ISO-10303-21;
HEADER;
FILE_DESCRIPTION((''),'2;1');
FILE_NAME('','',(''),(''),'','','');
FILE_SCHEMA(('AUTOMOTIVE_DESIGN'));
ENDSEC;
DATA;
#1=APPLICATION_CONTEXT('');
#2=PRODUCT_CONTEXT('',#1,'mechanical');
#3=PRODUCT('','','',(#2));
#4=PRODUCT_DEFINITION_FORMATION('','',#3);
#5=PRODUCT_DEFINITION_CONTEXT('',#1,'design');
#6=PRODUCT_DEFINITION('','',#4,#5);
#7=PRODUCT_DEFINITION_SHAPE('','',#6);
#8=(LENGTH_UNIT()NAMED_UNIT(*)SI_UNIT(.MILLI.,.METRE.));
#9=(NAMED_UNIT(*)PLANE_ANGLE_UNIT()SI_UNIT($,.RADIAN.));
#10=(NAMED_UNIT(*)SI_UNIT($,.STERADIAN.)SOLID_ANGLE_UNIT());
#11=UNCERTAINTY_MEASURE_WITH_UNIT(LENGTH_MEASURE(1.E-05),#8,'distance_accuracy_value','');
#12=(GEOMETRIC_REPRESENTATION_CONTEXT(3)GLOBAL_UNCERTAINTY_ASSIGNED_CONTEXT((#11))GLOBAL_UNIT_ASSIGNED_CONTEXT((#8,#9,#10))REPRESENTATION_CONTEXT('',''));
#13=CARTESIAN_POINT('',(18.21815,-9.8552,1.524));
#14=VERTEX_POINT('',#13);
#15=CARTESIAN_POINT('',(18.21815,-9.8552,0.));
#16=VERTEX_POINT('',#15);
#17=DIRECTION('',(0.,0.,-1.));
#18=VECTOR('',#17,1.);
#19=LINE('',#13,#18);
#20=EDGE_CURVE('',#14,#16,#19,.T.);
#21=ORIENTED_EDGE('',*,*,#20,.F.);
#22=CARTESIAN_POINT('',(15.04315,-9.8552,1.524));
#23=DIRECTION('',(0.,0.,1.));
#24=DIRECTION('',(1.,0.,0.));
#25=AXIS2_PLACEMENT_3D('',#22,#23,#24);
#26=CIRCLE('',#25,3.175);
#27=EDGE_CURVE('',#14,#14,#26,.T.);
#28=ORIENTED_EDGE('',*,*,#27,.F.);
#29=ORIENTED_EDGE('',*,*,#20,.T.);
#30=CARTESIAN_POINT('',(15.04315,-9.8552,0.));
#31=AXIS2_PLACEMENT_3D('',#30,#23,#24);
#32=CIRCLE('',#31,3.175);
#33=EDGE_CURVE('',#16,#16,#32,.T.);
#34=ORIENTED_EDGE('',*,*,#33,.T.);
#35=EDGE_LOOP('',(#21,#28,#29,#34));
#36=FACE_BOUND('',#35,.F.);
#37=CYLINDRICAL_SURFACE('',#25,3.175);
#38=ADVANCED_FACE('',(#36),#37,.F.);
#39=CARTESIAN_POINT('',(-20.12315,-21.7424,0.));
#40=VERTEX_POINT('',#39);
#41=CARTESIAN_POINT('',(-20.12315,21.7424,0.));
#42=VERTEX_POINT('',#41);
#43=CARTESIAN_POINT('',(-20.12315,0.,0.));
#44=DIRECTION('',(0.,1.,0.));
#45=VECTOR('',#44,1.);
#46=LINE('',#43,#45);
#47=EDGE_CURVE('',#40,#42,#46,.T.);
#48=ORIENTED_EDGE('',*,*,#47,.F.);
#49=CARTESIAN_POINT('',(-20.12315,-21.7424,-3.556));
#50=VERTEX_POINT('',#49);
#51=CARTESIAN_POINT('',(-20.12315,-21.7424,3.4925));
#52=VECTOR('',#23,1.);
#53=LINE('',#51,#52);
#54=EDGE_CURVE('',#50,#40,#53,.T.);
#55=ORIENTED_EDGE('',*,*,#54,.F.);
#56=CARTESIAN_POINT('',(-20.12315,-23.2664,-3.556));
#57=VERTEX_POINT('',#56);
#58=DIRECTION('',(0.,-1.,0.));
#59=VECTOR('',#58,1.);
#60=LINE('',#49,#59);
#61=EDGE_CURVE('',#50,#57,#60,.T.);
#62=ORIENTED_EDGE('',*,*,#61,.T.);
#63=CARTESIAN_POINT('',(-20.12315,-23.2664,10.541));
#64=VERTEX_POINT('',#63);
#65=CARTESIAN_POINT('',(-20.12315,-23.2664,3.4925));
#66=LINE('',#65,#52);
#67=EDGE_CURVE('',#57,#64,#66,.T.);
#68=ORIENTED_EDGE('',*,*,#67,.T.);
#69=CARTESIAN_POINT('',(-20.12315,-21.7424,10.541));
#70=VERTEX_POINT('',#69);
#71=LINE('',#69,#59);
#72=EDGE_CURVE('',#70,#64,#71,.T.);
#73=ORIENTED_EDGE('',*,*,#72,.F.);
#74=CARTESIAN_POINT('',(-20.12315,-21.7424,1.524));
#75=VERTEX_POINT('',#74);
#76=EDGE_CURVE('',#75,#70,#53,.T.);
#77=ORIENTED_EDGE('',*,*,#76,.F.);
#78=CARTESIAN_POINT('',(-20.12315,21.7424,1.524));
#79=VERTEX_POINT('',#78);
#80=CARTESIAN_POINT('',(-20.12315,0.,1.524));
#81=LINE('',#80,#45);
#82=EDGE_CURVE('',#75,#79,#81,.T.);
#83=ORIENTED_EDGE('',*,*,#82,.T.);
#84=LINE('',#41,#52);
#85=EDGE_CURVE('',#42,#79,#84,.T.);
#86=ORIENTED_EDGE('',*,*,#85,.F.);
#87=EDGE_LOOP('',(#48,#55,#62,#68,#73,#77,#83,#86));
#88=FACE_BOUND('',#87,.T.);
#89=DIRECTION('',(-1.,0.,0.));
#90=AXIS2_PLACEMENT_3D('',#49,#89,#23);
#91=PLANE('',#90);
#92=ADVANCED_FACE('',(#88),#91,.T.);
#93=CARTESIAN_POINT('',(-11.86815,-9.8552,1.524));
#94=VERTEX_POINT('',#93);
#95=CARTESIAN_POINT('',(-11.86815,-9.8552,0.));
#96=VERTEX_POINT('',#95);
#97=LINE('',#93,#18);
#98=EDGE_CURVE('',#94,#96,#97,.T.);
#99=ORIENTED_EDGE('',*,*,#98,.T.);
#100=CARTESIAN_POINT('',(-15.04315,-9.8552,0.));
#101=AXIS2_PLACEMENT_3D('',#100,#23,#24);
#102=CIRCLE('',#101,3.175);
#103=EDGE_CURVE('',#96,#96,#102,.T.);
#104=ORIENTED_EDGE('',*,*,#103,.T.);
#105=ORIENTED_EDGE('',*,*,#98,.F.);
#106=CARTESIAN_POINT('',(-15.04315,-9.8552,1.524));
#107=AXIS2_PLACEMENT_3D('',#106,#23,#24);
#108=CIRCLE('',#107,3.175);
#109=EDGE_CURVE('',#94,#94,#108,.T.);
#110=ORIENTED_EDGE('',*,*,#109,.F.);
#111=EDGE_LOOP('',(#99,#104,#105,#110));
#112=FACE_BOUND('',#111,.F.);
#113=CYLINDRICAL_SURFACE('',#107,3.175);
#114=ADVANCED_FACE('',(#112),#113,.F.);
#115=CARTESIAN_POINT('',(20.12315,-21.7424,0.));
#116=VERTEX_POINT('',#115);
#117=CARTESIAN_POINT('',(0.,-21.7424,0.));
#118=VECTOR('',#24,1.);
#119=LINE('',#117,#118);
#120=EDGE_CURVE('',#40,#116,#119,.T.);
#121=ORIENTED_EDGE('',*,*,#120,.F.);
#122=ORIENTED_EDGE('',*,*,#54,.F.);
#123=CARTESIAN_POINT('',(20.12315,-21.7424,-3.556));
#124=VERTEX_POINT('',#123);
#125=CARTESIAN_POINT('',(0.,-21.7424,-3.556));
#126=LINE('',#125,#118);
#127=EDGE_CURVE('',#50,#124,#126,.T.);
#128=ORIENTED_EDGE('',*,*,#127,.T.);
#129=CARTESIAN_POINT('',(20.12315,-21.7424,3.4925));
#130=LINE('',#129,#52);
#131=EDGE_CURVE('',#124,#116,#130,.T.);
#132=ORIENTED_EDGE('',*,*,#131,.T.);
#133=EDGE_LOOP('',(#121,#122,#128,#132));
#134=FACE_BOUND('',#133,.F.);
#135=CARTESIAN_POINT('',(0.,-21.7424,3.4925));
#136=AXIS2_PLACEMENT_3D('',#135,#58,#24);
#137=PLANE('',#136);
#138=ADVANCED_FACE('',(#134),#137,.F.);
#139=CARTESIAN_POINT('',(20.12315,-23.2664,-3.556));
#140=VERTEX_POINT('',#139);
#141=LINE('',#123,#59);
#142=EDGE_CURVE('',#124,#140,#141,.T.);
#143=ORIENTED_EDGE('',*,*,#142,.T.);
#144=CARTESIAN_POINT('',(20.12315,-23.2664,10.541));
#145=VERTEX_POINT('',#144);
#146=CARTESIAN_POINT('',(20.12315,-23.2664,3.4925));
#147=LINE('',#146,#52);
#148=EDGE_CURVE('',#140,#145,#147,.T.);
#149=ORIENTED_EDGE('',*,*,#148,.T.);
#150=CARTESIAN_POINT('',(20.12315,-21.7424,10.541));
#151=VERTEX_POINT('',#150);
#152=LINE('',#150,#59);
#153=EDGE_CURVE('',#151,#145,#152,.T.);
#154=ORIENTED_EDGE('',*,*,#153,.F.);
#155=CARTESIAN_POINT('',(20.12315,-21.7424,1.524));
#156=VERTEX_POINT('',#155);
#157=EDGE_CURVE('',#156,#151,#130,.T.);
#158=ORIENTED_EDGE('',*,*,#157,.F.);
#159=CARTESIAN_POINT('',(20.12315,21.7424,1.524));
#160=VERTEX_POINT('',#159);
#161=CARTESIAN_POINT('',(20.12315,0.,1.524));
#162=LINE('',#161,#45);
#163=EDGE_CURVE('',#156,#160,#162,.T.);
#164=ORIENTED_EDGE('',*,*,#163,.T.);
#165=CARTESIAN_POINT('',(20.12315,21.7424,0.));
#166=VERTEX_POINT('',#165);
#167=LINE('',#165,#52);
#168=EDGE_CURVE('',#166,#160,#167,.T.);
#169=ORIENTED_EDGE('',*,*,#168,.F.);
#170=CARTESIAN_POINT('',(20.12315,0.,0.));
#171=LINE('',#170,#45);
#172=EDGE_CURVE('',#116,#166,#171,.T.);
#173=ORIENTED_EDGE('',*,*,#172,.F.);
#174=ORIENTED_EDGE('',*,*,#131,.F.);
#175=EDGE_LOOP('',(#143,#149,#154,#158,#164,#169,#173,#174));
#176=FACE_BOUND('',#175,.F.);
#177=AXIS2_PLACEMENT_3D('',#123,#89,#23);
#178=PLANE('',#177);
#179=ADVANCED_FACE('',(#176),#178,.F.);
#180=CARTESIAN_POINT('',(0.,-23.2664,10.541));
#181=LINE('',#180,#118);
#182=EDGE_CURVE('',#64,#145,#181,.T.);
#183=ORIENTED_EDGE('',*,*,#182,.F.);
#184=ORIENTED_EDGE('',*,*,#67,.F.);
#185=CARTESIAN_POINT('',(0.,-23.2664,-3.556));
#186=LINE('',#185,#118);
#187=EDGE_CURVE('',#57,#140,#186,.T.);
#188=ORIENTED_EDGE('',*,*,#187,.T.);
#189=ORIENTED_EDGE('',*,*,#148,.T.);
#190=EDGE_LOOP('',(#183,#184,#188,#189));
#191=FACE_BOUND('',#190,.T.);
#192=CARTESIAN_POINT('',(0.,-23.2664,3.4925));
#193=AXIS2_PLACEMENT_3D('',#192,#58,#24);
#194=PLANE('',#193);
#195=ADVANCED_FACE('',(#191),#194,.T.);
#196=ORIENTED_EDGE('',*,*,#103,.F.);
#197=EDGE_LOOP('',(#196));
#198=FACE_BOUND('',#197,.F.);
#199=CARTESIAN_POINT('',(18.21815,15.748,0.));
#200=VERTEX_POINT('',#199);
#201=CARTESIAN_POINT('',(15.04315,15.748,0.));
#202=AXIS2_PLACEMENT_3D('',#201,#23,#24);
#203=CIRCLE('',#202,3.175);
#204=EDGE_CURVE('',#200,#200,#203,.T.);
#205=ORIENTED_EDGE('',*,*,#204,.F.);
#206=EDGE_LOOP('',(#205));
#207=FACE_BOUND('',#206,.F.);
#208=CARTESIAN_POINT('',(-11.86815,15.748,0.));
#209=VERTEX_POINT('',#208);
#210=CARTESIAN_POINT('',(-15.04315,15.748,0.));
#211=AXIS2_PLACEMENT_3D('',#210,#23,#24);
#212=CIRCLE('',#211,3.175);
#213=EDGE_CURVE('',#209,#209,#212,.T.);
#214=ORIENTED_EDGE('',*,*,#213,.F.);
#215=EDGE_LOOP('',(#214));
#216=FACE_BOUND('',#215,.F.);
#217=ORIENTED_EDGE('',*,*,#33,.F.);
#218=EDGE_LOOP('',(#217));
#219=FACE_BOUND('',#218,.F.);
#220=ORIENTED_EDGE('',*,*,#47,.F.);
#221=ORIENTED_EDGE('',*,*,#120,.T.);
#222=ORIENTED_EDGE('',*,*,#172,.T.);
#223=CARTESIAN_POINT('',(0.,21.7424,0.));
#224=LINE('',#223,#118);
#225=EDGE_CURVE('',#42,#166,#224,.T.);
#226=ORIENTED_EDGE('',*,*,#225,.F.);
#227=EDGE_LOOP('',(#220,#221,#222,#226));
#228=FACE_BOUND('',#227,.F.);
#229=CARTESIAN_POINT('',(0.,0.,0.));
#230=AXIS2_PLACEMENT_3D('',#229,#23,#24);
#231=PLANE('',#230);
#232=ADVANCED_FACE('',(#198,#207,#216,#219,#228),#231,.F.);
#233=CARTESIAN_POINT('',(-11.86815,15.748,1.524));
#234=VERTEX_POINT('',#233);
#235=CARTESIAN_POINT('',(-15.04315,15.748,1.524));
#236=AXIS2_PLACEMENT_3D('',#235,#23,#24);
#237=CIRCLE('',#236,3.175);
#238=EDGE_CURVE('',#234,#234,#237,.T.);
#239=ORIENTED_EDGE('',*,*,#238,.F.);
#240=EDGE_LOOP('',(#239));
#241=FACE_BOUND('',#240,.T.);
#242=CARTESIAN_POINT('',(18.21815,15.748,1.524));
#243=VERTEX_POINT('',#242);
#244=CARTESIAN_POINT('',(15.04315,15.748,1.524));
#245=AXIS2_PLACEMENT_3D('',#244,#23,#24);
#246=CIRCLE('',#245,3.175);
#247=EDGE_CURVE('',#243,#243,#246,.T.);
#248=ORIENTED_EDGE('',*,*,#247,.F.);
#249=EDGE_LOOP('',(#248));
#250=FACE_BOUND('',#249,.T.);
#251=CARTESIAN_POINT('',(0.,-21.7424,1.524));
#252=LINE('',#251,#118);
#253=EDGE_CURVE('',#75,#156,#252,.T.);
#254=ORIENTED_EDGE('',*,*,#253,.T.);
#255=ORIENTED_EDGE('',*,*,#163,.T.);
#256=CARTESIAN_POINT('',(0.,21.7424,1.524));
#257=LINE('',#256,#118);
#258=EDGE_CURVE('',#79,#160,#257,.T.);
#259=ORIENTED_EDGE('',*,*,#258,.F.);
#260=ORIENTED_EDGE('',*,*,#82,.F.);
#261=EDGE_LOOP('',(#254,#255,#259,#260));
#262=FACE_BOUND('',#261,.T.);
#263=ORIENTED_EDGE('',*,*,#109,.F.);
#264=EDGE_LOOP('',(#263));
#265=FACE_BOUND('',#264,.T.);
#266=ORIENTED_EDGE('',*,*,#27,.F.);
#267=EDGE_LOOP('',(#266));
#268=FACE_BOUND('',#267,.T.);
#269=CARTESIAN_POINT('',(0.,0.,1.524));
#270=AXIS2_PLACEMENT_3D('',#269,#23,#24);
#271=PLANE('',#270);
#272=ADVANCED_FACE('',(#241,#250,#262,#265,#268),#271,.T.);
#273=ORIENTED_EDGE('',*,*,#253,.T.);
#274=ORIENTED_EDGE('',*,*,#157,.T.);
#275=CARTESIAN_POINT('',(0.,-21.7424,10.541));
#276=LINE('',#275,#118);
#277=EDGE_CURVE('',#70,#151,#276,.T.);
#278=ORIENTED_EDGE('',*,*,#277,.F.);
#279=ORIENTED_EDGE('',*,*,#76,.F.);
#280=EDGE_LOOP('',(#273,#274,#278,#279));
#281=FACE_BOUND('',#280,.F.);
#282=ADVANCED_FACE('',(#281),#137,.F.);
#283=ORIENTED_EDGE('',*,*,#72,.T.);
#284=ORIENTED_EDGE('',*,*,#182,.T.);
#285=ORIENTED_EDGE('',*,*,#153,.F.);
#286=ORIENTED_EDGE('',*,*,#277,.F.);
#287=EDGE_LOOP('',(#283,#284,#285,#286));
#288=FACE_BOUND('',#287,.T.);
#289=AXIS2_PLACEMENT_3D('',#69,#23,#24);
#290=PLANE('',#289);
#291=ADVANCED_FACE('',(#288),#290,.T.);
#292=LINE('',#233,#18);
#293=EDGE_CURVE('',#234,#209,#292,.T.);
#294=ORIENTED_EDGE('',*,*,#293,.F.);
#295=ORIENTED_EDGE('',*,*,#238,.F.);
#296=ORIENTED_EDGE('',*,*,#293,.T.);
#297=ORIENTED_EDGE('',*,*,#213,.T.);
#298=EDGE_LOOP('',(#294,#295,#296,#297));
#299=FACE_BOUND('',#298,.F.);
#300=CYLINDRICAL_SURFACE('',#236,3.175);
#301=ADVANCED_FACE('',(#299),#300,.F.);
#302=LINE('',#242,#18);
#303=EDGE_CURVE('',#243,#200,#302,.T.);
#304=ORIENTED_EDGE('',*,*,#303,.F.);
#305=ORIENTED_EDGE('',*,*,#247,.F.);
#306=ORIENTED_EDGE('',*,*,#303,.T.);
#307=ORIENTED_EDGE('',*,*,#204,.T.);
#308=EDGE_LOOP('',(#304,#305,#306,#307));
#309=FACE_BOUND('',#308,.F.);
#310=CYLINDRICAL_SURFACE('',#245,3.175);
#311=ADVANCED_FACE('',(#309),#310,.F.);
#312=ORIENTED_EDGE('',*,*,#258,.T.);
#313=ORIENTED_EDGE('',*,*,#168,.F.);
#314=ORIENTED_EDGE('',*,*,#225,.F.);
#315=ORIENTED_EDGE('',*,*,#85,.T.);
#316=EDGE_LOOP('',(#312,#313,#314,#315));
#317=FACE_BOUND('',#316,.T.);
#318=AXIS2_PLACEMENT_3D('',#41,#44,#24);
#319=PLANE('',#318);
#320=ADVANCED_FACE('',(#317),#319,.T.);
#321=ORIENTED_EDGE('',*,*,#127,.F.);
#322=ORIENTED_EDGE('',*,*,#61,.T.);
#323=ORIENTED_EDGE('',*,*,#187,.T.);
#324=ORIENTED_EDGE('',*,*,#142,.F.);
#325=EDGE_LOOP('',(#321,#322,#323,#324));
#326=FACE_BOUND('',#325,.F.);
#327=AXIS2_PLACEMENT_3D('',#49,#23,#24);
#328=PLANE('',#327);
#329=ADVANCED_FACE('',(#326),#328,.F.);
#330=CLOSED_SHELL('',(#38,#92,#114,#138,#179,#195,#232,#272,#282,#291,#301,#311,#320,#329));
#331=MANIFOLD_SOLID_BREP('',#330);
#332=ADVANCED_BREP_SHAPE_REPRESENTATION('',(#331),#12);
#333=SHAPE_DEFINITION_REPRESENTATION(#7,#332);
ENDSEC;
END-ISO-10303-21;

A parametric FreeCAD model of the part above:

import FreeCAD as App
import Part
import Sketcher

V = App.Vector
Q = App.Units.Quantity


def add_polygon(sketch, points):
    """Adds a closed chain of lines whose ends are joined by coincident constraints."""
    first, n = sketch.GeometryCount, len(points)
    for a, b in zip(points, points[1:] + points[:1]):
        sketch.addGeometry(Part.LineSegment(App.Vector(*a, 0), App.Vector(*b, 0)), False)
    for i in range(n):
        sketch.addConstraint(Sketcher.Constraint("Coincident", first + i, 2, first + (i + 1) % n, 1))

doc = App.newDocument("Part")
body = doc.addObject("PartDesign::Body", "Body")

# Sketch on XY plane
sketch1 = body.newObject("Sketcher::SketchObject", "Sketch")
sketch1.AttachmentSupport = (doc.getObject("XY_Plane"), [""])
sketch1.MapMode = "FlatFace"
add_polygon(sketch1, [(-20.12315, 21.7424), (-20.12315, -21.7424), (20.12315, -21.7424), (20.12315, 21.7424)])  # lines 0-3
sketch1.addConstraint(Sketcher.Constraint("Vertical", 0))
sketch1.addConstraint(Sketcher.Constraint("Horizontal", 1))
sketch1.addConstraint(Sketcher.Constraint("Vertical", 2))
sketch1.addConstraint(Sketcher.Constraint("Horizontal", 3))
sketch1.addConstraint(Sketcher.Constraint("Symmetric", 0, 2, 2, 2, -1, 1))
sketch1.addConstraint(Sketcher.Constraint("DistanceY", 0, 2, 0, 1, Q("1.712 in")))
sketch1.addConstraint(Sketcher.Constraint("DistanceX", 1, 1, 1, 2, Q("1.5845 in")))
pad1 = body.newObject("PartDesign::Pad", "Pad")
pad1.Profile = sketch1
pad1.Length = Q("0.06 in")

# Sketch on XZ plane
sketch2 = body.newObject("Sketcher::SketchObject", "Sketch001")
sketch2.AttachmentSupport = (doc.getObject("XZ_Plane"), [""])
sketch2.MapMode = "FlatFace"
sketch2.AttachmentOffset = App.Placement(V(0, 0, 0.856 * 25.4), App.Rotation())
add_polygon(sketch2, [(-20.12315, 10.541), (-20.12315, -3.556), (20.12315, -3.556), (20.12315, 10.541)])  # lines 0-3
sketch2.addConstraint(Sketcher.Constraint("Vertical", 0))
sketch2.addConstraint(Sketcher.Constraint("Horizontal", 1))
sketch2.addConstraint(Sketcher.Constraint("Vertical", 2))
sketch2.addConstraint(Sketcher.Constraint("Horizontal", 3))
sketch2.addConstraint(Sketcher.Constraint("DistanceY", 0, 2, 0, 1, Q("0.555 in")))
sketch2.addConstraint(Sketcher.Constraint("DistanceY", 0, 2, -1, 1, Q("0.14 in")))
sketch2.addConstraint(Sketcher.Constraint("DistanceX", 1, 1, 1, 2, Q("1.5845 in")))
sketch2.addConstraint(Sketcher.Constraint("DistanceX", 0, 2, -1, 1, Q("20.12315 mm")))
pad2 = body.newObject("PartDesign::Pad", "Pad001")
pad2.Profile = sketch2
pad2.Length = Q("0.06 in")

# Sketch on XY plane
sketch3 = body.newObject("Sketcher::SketchObject", "Sketch002")
sketch3.AttachmentSupport = (doc.getObject("XY_Plane"), [""])
sketch3.MapMode = "FlatFace"
sketch3.AttachmentOffset = App.Placement(V(0, 0, 0.06 * 25.4), App.Rotation())
sketch3.addGeometry(Part.Circle(V(15.04315, 15.748, 0), V(0, 0, 1), 3.175), False)
sketch3.addGeometry(Part.Circle(V(15.04315, -9.8552, 0), V(0, 0, 1), 3.175), False)
sketch3.addGeometry(Part.Circle(V(-15.04315, 15.748, 0), V(0, 0, 1), 3.175), False)
sketch3.addGeometry(Part.Circle(V(-15.04315, -9.8552, 0), V(0, 0, 1), 3.175), False)
sketch3.addConstraint(Sketcher.Constraint("Equal", 0, 1))
sketch3.addConstraint(Sketcher.Constraint("Equal", 1, 2))
sketch3.addConstraint(Sketcher.Constraint("Equal", 2, 3))
sketch3.addConstraint(Sketcher.Constraint("Symmetric", 0, 3, 2, 3, -2))
sketch3.addConstraint(Sketcher.Constraint("Symmetric", 1, 3, 3, 3, -2))
sketch3.addConstraint(Sketcher.Constraint("Vertical", 0, 3, 1, 3))
sketch3.addConstraint(Sketcher.Constraint("Diameter", 0, Q("0.25 in")))
sketch3.addConstraint(Sketcher.Constraint("DistanceY", -1, 1, 0, 3, Q("0.62 in")))
sketch3.addConstraint(Sketcher.Constraint("DistanceY", 1, 3, -1, 1, Q("0.388 in")))
sketch3.addConstraint(Sketcher.Constraint("DistanceX", 2, 3, 0, 3, Q("1.1845 in")))
pocket1 = body.newObject("PartDesign::Pocket", "Pocket")
pocket1.Profile = sketch3
pocket1.Length = Q("1 in")

doc.recompute()
